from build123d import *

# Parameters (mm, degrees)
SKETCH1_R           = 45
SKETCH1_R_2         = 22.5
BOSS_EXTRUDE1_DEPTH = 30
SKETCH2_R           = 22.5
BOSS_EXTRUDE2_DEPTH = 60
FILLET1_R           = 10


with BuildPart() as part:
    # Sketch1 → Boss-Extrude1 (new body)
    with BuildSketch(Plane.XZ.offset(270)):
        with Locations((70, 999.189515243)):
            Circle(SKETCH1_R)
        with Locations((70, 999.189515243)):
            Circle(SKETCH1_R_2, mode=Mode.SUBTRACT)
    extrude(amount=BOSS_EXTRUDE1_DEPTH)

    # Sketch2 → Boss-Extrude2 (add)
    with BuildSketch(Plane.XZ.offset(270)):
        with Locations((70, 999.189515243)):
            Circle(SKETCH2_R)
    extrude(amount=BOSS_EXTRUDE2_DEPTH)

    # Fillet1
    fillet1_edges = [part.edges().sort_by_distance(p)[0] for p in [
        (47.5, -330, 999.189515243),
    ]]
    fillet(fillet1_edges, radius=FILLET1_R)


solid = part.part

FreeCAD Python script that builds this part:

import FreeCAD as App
import Part
import Sketcher
from FreeCAD import Vector


def edges_at(feature, points):
    """Names of the edges that pass closest to the given points."""
    edges = feature.Shape.Edges
    near = lambda p: min(range(len(edges)), key=lambda i: edges[i].distToShape(Part.Vertex(*p))[0])
    return sorted({f"Edge{near(p) + 1}" for p in points})

doc = App.newDocument("Part")
body = doc.addObject("PartDesign::Body", "Body")

# Sketch on XZ plane
sketch1 = body.newObject("Sketcher::SketchObject", "Sketch")
sketch1.AttachmentSupport = (doc.getObject("XZ_Plane"), [""])
sketch1.MapMode = "FlatFace"
sketch1.AttachmentOffset = App.Placement(Vector(0, 0, 270), App.Rotation())
sketch1.addGeometry(Part.Circle(Vector(70, 999, 0), Vector(0, 0, 1), 45), False)
sketch1.addGeometry(Part.Circle(Vector(70, 999, 0), Vector(0, 0, 1), 22), False)
sketch1.addConstraint(Sketcher.Constraint("Coincident", 1, 3, 0, 3))
sketch1.addConstraint(Sketcher.Constraint("Diameter", 0, 90.0))
sketch1.addConstraint(Sketcher.Constraint("Diameter", 1, 45.0))
sketch1.addConstraint(Sketcher.Constraint("DistanceX", -1, 1, 0, 3, 70.0))
sketch1.addConstraint(Sketcher.Constraint("DistanceY", -1, 1, 0, 3, 999.189515))
pad1 = body.newObject("PartDesign::Pad", "Pad")
pad1.Profile = sketch1
pad1.Length = 30

# Sketch on XZ plane
sketch2 = body.newObject("Sketcher::SketchObject", "Sketch001")
sketch2.AttachmentSupport = (doc.getObject("XZ_Plane"), [""])
sketch2.MapMode = "FlatFace"
sketch2.AttachmentOffset = App.Placement(Vector(0, 0, 270), App.Rotation())
sketch2.addGeometry(Part.Circle(Vector(70, 999, 0), Vector(0, 0, 1), 22), False)
sketch2.addConstraint(Sketcher.Constraint("Diameter", 0, 45.0))
sketch2.addConstraint(Sketcher.Constraint("DistanceX", -1, 1, 0, 3, 70.0))
sketch2.addConstraint(Sketcher.Constraint("DistanceY", -1, 1, 0, 3, 999.189515))
pad2 = body.newObject("PartDesign::Pad", "Pad001")
pad2.Profile = sketch2
pad2.Length = 60
doc.recompute()

fillet = body.newObject("PartDesign::Fillet", "Fillet")
fillet.Base = (pad2, edges_at(pad2, [(47.5, -330, 999.19)]))
fillet.Radius = 10

doc.recompute()
